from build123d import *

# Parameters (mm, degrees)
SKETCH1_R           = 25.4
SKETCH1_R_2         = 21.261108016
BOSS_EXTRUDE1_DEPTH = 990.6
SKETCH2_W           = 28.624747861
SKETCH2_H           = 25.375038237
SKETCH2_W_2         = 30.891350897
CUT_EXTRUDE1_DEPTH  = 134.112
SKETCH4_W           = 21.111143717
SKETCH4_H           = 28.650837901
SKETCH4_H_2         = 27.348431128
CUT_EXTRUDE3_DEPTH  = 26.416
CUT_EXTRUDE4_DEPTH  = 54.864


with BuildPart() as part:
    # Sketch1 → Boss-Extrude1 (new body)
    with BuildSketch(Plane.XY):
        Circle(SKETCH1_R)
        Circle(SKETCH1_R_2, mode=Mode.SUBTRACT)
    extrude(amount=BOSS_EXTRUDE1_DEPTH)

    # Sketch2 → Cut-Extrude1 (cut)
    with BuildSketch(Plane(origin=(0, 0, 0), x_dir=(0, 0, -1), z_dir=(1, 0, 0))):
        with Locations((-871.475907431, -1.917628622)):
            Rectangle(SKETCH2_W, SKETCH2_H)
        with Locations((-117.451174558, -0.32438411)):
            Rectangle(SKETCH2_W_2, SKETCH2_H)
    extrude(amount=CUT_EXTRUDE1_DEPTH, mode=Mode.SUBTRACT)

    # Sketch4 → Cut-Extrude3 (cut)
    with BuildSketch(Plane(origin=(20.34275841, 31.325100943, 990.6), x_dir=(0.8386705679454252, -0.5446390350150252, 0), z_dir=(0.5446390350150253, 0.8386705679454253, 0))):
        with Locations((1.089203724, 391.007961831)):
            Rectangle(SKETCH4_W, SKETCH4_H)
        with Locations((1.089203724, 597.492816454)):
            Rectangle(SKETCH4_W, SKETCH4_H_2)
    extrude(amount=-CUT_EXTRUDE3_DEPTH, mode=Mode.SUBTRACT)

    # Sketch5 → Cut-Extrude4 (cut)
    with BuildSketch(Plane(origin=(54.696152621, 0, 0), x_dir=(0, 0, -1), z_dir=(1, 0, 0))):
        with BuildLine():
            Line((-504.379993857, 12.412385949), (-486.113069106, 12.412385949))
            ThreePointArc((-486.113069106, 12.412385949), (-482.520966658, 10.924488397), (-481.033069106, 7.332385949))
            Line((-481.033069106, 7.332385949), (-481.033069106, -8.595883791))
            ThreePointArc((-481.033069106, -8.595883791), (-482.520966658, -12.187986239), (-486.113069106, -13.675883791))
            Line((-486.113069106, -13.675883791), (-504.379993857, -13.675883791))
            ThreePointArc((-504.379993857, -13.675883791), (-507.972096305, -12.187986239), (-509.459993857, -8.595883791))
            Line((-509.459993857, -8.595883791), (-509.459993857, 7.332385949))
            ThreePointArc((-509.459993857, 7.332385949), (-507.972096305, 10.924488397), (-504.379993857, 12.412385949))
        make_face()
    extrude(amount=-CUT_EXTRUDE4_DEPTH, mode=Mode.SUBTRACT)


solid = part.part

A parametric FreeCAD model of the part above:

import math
import FreeCAD as App
import Part
import Sketcher

V = App.Vector
Q = App.Units.Quantity

doc = App.newDocument("Part")
body = doc.addObject("PartDesign::Body", "Body")

# Sketch on XY plane
sketch1 = body.newObject("Sketcher::SketchObject", "Sketch")
sketch1.AttachmentSupport = (doc.getObject("XY_Plane"), [""])
sketch1.MapMode = "FlatFace"
sketch1.addGeometry([
    Part.Circle(V(0, 0, 0), V(0, 0, 1), 25),
    Part.Circle(V(0, 0, 0), V(0, 0, 1), 21),
], False)
sketch1.addConstraint([
    Sketcher.Constraint("Coincident", 0, 3, -1, 1),
    Sketcher.Constraint("Coincident", 1, 3, -1, 1),
    Sketcher.Constraint("Diameter", 0, Q("2 in")),
    Sketcher.Constraint("Diameter", 1, Q("42.522216 mm")),
])
pad1 = body.newObject("PartDesign::Pad", "Pad")
pad1.Profile = sketch1
pad1.Length = Q("39 in")

# Sketch on YZ plane
sketch2 = body.newObject("Sketcher::SketchObject", "Sketch001")
sketch2.AttachmentSupport = (doc.getObject("YZ_Plane"), [""])
sketch2.MapMode = "FlatFace"
sketch2.addGeometry([
    Part.LineSegment(V(11, 886, 0), V(-15, 886, 0)),  # 0
    Part.LineSegment(V(-15, 886, 0), V(-15, 857, 0)),  # 1
    Part.LineSegment(V(-15, 857, 0), V(11, 857, 0)),  # 2
    Part.LineSegment(V(11, 857, 0), V(11, 886, 0)),  # 3
    Part.LineSegment(V(12, 133, 0), V(-13, 133, 0)),  # 4
    Part.LineSegment(V(-13, 133, 0), V(-13, 102, 0)),  # 5
    Part.LineSegment(V(-13, 102, 0), V(12, 102, 0)),  # 6
    Part.LineSegment(V(12, 102, 0), V(12, 133, 0)),  # 7
], False)
sketch2.addConstraint([
    Sketcher.Constraint("Coincident", 0, 2, 1, 1),
    Sketcher.Constraint("Coincident", 1, 2, 2, 1),
    Sketcher.Constraint("Coincident", 2, 2, 3, 1),
    Sketcher.Constraint("Coincident", 3, 2, 0, 1),
    Sketcher.Constraint("Coincident", 4, 2, 5, 1),
    Sketcher.Constraint("Coincident", 5, 2, 6, 1),
    Sketcher.Constraint("Coincident", 6, 2, 7, 1),
    Sketcher.Constraint("Coincident", 7, 2, 4, 1),
    Sketcher.Constraint("Horizontal", 0),
    Sketcher.Constraint("Vertical", 1),
    Sketcher.Constraint("Horizontal", 2),
    Sketcher.Constraint("Vertical", 3),
    Sketcher.Constraint("Horizontal", 4),
    Sketcher.Constraint("Vertical", 5),
    Sketcher.Constraint("Horizontal", 6),
    Sketcher.Constraint("Vertical", 7),
    Sketcher.Constraint("Equal", 2, 4),
    Sketcher.Constraint("DistanceX", 0, 2, 0, 1, Q("25.375038 mm")),
    Sketcher.Constraint("DistanceY", 5, 2, 5, 1, Q("30.891351 mm")),
    Sketcher.Constraint("DistanceY", -1, 1, 5, 2, Q("102.005499 mm")),
    Sketcher.Constraint("DistanceY", 1, 2, 1, 1, Q("28.624748 mm")),
    Sketcher.Constraint("DistanceY", -1, 1, 0, 2, Q("885.788281 mm")),
    Sketcher.Constraint("DistanceX", -1, 1, 2, 2, Q("10.76989 mm")),
    Sketcher.Constraint("DistanceX", 4, 2, -1, 1, Q("13.011903 mm")),
])
pocket1 = body.newObject("PartDesign::Pocket", "Pocket")
pocket1.Profile = sketch2
pocket1.Length = Q("5.28 in")
pocket1.Reversed = True

# Sketch on an angled plane
sketch3 = body.newObject("Sketcher::SketchObject", "Sketch002")
sketch3.Placement = App.Placement(V(20.342758, 31.325101, 990.6), App.Rotation(V(0.838670568, -0.544639035, 0), V(0, 0, -1), V(0.544639035, 0.838670568, 0), "ZXY"))
sketch3.addGeometry([
    Part.LineSegment(V(-9, 405, 0), V(-9, 377, 0)),  # 0
    Part.LineSegment(V(-9, 377, 0), V(12, 377, 0)),  # 1
    Part.LineSegment(V(12, 377, 0), V(12, 405, 0)),  # 2
    Part.LineSegment(V(12, 405, 0), V(-9, 405, 0)),  # 3
    Part.LineSegment(V(-9, 611, 0), V(-9, 584, 0)),  # 4
    Part.LineSegment(V(-9, 584, 0), V(12, 584, 0)),  # 5
    Part.LineSegment(V(12, 584, 0), V(12, 611, 0)),  # 6
    Part.LineSegment(V(12, 611, 0), V(-9, 611, 0)),  # 7
], False)
sketch3.addConstraint([
    Sketcher.Constraint("Coincident", 0, 2, 1, 1),
    Sketcher.Constraint("Coincident", 1, 2, 2, 1),
    Sketcher.Constraint("Coincident", 2, 2, 3, 1),
    Sketcher.Constraint("Coincident", 3, 2, 0, 1),
    Sketcher.Constraint("Coincident", 4, 2, 5, 1),
    Sketcher.Constraint("Coincident", 5, 2, 6, 1),
    Sketcher.Constraint("Coincident", 6, 2, 7, 1),
    Sketcher.Constraint("Coincident", 7, 2, 4, 1),
    Sketcher.Constraint("Vertical", 0),
    Sketcher.Constraint("Horizontal", 1),
    Sketcher.Constraint("Vertical", 2),
    Sketcher.Constraint("Horizontal", 3),
    Sketcher.Constraint("Vertical", 4),
    Sketcher.Constraint("Horizontal", 5),
    Sketcher.Constraint("Vertical", 6),
    Sketcher.Constraint("Horizontal", 7),
    Sketcher.Constraint("Vertical", 3, 2, 4, 2),
    Sketcher.Constraint("Vertical", 2, 2, 5, 2),
    Sketcher.Constraint("DistanceY", 4, 2, 4, 1, Q("27.348431 mm")),
    Sketcher.Constraint("DistanceY", -1, 1, 4, 2, Q("583.818601 mm")),
    Sketcher.Constraint("DistanceX", 1, 1, 1, 2, Q("21.111144 mm")),
    Sketcher.Constraint("DistanceY", 0, 2, 0, 1, Q("28.650838 mm")),
    Sketcher.Constraint("DistanceX", 0, 2, -1, 1, Q("9.466368 mm")),
    Sketcher.Constraint("DistanceY", -1, 1, 2, 2, Q("405.333381 mm")),
])
pocket2 = body.newObject("PartDesign::Pocket", "Pocket001")
pocket2.Profile = sketch3
pocket2.Length = Q("1.04 in")

# Sketch on YZ plane
sketch4 = body.newObject("Sketcher::SketchObject", "Sketch003")
sketch4.AttachmentSupport = (doc.getObject("YZ_Plane"), [""])
sketch4.MapMode = "FlatFace"
sketch4.AttachmentOffset = App.Placement(V(0, 0, 54.696153), App.Rotation())
sketch4.addGeometry([
    Part.LineSegment(V(12, 486, 0), V(12, 504, 0)),  # 0
    Part.ArcOfCircle(Part.Circle(V(7, 504, 0), V(0, 0, 1), 5), math.radians(0), math.radians(90)),  # 1
    Part.LineSegment(V(7, 509, 0), V(-9, 509, 0)),  # 2
    Part.ArcOfCircle(Part.Circle(V(-9, 504, 0), V(0, 0, 1), 5), math.radians(90), math.radians(180)),  # 3
    Part.LineSegment(V(-14, 504, 0), V(-14, 486, 0)),  # 4
    Part.ArcOfCircle(Part.Circle(V(-9, 486, 0), V(0, 0, 1), 5), math.radians(-180), math.radians(-90)),  # 5
    Part.LineSegment(V(-9, 481, 0), V(7, 481, 0)),  # 6
    Part.ArcOfCircle(Part.Circle(V(7, 486, 0), V(0, 0, 1), 5), math.radians(-90), math.radians(0)),  # 7
], False)
sketch4.addConstraint([
    Sketcher.Constraint("Tangent", 0, 2, 1, 1),
    Sketcher.Constraint("Tangent", 1, 2, 2, 1),
    Sketcher.Constraint("Tangent", 2, 2, 3, 1),
    Sketcher.Constraint("Tangent", 3, 2, 4, 1),
    Sketcher.Constraint("Tangent", 4, 2, 5, 1),
    Sketcher.Constraint("Tangent", 5, 2, 6, 1),
    Sketcher.Constraint("Tangent", 6, 2, 7, 1),
    Sketcher.Constraint("Tangent", 7, 2, 0, 1),
    Sketcher.Constraint("Vertical", 0),
    Sketcher.Constraint("Horizontal", 2),
    Sketcher.Constraint("Vertical", 4),
    Sketcher.Constraint("Horizontal", 6),
    Sketcher.Constraint("Equal", 1, 3),
    Sketcher.Constraint("Equal", 3, 5),
    Sketcher.Constraint("Equal", 5, 7),
    Sketcher.Constraint("Radius", 1, Q("0.2 in")),
    Sketcher.Constraint("DistanceX", 2, 2, 2, 1, Q("15.92827 mm")),
    Sketcher.Constraint("DistanceY", 0, 1, 0, 2, Q("18.266925 mm")),
    Sketcher.Constraint("DistanceY", -1, 1, 5, 3, Q("486.113069 mm")),
    Sketcher.Constraint("DistanceX", -1, 1, 1, 3, Q("7.332386 mm")),
])
pocket3 = body.newObject("PartDesign::Pocket", "Pocket002")
pocket3.Profile = sketch4
pocket3.Length = Q("2.16 in")

doc.recompute()
